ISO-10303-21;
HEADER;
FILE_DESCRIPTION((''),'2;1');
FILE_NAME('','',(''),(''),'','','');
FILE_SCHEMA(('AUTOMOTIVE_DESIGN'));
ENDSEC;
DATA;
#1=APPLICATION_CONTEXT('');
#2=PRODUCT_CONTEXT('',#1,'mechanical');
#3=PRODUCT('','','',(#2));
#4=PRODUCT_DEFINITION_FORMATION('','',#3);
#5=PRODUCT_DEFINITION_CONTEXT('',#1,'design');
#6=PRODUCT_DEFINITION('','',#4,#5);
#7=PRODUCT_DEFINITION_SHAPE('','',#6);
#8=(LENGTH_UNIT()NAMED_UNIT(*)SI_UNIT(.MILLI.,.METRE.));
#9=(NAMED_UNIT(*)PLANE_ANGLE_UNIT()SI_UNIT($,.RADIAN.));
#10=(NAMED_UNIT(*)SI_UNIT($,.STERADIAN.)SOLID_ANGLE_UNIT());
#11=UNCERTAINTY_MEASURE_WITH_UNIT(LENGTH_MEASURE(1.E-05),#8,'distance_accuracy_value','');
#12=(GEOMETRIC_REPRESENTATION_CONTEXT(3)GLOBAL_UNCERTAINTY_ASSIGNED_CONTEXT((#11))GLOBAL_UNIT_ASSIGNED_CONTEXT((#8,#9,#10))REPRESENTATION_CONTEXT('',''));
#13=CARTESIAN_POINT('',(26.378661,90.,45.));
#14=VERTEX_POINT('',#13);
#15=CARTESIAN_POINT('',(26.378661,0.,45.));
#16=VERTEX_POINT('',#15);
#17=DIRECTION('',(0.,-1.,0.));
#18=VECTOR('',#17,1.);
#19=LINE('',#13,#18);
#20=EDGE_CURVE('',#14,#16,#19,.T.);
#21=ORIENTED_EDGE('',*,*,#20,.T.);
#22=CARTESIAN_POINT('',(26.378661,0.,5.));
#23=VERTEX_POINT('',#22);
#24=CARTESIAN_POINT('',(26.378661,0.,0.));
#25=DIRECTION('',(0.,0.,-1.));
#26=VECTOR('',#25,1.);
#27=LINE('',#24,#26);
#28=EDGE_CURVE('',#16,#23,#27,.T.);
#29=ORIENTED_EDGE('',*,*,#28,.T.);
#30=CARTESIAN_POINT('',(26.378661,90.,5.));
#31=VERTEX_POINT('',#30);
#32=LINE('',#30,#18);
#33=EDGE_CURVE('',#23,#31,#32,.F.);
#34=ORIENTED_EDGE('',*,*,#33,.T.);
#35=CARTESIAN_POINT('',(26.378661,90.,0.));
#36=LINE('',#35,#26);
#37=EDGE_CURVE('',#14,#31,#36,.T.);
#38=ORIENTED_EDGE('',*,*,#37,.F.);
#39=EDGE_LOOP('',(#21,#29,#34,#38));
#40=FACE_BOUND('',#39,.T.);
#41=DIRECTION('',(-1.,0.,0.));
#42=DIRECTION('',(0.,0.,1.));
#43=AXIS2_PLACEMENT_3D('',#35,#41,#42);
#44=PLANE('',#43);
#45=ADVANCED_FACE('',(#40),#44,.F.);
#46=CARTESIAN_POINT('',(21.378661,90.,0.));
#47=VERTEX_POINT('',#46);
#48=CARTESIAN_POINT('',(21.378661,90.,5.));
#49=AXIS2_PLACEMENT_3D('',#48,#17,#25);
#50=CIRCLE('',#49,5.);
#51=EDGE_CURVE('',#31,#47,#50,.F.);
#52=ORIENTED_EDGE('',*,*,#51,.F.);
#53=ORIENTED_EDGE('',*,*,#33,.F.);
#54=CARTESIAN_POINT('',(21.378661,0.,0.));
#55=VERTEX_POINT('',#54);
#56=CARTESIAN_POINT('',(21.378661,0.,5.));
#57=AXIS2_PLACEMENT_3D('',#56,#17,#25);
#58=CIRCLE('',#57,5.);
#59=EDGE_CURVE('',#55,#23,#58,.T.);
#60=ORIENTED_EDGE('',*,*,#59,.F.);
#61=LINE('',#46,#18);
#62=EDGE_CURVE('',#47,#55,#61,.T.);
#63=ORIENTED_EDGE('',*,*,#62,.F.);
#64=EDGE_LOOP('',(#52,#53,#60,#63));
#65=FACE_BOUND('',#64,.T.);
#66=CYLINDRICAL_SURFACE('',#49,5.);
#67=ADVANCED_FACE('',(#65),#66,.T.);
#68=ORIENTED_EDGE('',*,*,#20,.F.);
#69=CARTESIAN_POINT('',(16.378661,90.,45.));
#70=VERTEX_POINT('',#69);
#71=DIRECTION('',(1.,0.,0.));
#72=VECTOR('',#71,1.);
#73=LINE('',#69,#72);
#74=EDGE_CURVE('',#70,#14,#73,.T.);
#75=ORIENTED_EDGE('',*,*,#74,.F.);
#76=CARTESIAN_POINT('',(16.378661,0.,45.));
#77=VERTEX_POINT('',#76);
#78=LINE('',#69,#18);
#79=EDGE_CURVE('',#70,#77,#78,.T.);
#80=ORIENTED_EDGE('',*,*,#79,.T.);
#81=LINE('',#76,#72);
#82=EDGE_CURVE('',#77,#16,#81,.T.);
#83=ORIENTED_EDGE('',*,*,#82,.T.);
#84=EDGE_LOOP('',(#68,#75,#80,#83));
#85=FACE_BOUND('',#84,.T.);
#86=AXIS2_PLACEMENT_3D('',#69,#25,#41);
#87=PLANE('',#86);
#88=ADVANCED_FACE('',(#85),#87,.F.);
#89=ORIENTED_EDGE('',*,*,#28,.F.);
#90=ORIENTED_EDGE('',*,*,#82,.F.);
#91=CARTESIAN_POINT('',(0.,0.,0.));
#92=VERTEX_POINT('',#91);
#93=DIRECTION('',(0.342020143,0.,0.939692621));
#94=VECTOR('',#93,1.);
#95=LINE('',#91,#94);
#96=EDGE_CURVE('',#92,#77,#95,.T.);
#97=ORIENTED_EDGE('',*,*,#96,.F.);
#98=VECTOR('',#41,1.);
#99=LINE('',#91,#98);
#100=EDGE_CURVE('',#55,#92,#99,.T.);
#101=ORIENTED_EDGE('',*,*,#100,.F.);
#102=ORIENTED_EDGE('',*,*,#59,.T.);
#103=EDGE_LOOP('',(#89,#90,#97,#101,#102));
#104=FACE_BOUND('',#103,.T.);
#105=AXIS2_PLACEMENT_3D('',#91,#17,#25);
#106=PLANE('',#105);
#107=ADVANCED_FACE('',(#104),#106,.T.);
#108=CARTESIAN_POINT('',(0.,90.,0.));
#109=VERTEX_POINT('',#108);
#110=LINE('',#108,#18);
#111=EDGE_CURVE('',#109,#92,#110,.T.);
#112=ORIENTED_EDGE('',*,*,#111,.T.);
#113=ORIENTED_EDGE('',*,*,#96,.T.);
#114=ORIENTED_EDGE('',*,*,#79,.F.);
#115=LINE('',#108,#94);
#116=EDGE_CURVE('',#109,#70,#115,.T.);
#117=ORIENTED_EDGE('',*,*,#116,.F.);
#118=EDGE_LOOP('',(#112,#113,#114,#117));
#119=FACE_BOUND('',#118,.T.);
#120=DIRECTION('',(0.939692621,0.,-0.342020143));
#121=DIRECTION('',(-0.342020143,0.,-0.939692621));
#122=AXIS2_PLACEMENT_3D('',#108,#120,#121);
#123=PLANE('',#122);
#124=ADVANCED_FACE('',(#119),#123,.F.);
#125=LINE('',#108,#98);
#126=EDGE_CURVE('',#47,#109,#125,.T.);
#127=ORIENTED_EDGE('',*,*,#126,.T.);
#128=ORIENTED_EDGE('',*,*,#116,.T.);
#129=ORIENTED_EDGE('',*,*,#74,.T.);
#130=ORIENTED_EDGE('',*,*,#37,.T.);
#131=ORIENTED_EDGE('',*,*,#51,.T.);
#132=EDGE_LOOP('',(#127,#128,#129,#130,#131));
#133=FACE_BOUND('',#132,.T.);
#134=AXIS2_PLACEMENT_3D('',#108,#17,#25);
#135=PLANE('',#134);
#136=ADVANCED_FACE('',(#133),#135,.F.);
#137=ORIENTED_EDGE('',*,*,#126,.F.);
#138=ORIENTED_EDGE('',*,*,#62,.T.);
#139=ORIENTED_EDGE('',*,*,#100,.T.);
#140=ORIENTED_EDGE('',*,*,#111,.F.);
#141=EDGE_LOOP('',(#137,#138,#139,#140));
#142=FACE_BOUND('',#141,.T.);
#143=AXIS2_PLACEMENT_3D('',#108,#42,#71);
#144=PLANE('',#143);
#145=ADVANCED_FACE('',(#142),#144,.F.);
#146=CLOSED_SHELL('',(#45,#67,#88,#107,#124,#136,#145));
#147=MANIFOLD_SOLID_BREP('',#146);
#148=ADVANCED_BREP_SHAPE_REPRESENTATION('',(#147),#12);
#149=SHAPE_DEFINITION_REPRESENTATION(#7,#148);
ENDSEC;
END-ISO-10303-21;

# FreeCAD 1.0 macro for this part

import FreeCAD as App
import Part
import Sketcher
Q = App.Units.Quantity


def edges_at(feature, points):
    """Names of the edges that pass closest to the given points."""
    edges = feature.Shape.Edges
    near = lambda p: min(range(len(edges)), key=lambda i: edges[i].distToShape(Part.Vertex(*p))[0])
    return sorted({f"Edge{near(p) + 1}" for p in points})

doc = App.newDocument("Part")
body = doc.addObject("PartDesign::Body", "Body")

sketch1 = body.newObject("Sketcher::SketchObject", "Sketch")
sketch1.AttachmentSupport = (doc.getObject("XZ_Plane"), [""])
sketch1.MapMode = "FlatFace"
sketch1.addGeometry([
    Part.LineSegment(App.Vector(0, 0, 0), App.Vector(16, 45, 0)),
    Part.LineSegment(App.Vector(16, 45, 0), App.Vector(26, 45, 0)),
    Part.LineSegment(App.Vector(26, 45, 0), App.Vector(26, 0, 0)),
    Part.LineSegment(App.Vector(26, 0, 0), App.Vector(0, 0, 0)),
], False)
sketch1.addConstraint([
    Sketcher.Constraint("Coincident", 0, 2, 1, 1),
    Sketcher.Constraint("Coincident", 1, 2, 2, 1),
    Sketcher.Constraint("Coincident", 2, 2, 3, 1),
    Sketcher.Constraint("Coincident", 3, 2, 0, 1),
    Sketcher.Constraint("Horizontal", 1),
    Sketcher.Constraint("Vertical", 2),
    Sketcher.Constraint("Horizontal", 3),
    Sketcher.Constraint("Coincident", 3, 2, -1, 1),
    Sketcher.Constraint("DistanceX", 1, 1, 1, 2, 10.0),
    Sketcher.Constraint("DistanceY", 2, 2, 2, 1, 45.0),
    Sketcher.Constraint("Angle", 0, Q("70 deg")),
])
pad1 = body.newObject("PartDesign::Pad", "Pad")
pad1.Profile = sketch1
pad1.Length = 90
pad1.Reversed = True
doc.recompute()

fillet = body.newObject("PartDesign::Fillet", "Fillet")
fillet.Base = (pad1, edges_at(pad1, [(26.379, 45, 0)]))
fillet.Radius = 5

doc.recompute()
